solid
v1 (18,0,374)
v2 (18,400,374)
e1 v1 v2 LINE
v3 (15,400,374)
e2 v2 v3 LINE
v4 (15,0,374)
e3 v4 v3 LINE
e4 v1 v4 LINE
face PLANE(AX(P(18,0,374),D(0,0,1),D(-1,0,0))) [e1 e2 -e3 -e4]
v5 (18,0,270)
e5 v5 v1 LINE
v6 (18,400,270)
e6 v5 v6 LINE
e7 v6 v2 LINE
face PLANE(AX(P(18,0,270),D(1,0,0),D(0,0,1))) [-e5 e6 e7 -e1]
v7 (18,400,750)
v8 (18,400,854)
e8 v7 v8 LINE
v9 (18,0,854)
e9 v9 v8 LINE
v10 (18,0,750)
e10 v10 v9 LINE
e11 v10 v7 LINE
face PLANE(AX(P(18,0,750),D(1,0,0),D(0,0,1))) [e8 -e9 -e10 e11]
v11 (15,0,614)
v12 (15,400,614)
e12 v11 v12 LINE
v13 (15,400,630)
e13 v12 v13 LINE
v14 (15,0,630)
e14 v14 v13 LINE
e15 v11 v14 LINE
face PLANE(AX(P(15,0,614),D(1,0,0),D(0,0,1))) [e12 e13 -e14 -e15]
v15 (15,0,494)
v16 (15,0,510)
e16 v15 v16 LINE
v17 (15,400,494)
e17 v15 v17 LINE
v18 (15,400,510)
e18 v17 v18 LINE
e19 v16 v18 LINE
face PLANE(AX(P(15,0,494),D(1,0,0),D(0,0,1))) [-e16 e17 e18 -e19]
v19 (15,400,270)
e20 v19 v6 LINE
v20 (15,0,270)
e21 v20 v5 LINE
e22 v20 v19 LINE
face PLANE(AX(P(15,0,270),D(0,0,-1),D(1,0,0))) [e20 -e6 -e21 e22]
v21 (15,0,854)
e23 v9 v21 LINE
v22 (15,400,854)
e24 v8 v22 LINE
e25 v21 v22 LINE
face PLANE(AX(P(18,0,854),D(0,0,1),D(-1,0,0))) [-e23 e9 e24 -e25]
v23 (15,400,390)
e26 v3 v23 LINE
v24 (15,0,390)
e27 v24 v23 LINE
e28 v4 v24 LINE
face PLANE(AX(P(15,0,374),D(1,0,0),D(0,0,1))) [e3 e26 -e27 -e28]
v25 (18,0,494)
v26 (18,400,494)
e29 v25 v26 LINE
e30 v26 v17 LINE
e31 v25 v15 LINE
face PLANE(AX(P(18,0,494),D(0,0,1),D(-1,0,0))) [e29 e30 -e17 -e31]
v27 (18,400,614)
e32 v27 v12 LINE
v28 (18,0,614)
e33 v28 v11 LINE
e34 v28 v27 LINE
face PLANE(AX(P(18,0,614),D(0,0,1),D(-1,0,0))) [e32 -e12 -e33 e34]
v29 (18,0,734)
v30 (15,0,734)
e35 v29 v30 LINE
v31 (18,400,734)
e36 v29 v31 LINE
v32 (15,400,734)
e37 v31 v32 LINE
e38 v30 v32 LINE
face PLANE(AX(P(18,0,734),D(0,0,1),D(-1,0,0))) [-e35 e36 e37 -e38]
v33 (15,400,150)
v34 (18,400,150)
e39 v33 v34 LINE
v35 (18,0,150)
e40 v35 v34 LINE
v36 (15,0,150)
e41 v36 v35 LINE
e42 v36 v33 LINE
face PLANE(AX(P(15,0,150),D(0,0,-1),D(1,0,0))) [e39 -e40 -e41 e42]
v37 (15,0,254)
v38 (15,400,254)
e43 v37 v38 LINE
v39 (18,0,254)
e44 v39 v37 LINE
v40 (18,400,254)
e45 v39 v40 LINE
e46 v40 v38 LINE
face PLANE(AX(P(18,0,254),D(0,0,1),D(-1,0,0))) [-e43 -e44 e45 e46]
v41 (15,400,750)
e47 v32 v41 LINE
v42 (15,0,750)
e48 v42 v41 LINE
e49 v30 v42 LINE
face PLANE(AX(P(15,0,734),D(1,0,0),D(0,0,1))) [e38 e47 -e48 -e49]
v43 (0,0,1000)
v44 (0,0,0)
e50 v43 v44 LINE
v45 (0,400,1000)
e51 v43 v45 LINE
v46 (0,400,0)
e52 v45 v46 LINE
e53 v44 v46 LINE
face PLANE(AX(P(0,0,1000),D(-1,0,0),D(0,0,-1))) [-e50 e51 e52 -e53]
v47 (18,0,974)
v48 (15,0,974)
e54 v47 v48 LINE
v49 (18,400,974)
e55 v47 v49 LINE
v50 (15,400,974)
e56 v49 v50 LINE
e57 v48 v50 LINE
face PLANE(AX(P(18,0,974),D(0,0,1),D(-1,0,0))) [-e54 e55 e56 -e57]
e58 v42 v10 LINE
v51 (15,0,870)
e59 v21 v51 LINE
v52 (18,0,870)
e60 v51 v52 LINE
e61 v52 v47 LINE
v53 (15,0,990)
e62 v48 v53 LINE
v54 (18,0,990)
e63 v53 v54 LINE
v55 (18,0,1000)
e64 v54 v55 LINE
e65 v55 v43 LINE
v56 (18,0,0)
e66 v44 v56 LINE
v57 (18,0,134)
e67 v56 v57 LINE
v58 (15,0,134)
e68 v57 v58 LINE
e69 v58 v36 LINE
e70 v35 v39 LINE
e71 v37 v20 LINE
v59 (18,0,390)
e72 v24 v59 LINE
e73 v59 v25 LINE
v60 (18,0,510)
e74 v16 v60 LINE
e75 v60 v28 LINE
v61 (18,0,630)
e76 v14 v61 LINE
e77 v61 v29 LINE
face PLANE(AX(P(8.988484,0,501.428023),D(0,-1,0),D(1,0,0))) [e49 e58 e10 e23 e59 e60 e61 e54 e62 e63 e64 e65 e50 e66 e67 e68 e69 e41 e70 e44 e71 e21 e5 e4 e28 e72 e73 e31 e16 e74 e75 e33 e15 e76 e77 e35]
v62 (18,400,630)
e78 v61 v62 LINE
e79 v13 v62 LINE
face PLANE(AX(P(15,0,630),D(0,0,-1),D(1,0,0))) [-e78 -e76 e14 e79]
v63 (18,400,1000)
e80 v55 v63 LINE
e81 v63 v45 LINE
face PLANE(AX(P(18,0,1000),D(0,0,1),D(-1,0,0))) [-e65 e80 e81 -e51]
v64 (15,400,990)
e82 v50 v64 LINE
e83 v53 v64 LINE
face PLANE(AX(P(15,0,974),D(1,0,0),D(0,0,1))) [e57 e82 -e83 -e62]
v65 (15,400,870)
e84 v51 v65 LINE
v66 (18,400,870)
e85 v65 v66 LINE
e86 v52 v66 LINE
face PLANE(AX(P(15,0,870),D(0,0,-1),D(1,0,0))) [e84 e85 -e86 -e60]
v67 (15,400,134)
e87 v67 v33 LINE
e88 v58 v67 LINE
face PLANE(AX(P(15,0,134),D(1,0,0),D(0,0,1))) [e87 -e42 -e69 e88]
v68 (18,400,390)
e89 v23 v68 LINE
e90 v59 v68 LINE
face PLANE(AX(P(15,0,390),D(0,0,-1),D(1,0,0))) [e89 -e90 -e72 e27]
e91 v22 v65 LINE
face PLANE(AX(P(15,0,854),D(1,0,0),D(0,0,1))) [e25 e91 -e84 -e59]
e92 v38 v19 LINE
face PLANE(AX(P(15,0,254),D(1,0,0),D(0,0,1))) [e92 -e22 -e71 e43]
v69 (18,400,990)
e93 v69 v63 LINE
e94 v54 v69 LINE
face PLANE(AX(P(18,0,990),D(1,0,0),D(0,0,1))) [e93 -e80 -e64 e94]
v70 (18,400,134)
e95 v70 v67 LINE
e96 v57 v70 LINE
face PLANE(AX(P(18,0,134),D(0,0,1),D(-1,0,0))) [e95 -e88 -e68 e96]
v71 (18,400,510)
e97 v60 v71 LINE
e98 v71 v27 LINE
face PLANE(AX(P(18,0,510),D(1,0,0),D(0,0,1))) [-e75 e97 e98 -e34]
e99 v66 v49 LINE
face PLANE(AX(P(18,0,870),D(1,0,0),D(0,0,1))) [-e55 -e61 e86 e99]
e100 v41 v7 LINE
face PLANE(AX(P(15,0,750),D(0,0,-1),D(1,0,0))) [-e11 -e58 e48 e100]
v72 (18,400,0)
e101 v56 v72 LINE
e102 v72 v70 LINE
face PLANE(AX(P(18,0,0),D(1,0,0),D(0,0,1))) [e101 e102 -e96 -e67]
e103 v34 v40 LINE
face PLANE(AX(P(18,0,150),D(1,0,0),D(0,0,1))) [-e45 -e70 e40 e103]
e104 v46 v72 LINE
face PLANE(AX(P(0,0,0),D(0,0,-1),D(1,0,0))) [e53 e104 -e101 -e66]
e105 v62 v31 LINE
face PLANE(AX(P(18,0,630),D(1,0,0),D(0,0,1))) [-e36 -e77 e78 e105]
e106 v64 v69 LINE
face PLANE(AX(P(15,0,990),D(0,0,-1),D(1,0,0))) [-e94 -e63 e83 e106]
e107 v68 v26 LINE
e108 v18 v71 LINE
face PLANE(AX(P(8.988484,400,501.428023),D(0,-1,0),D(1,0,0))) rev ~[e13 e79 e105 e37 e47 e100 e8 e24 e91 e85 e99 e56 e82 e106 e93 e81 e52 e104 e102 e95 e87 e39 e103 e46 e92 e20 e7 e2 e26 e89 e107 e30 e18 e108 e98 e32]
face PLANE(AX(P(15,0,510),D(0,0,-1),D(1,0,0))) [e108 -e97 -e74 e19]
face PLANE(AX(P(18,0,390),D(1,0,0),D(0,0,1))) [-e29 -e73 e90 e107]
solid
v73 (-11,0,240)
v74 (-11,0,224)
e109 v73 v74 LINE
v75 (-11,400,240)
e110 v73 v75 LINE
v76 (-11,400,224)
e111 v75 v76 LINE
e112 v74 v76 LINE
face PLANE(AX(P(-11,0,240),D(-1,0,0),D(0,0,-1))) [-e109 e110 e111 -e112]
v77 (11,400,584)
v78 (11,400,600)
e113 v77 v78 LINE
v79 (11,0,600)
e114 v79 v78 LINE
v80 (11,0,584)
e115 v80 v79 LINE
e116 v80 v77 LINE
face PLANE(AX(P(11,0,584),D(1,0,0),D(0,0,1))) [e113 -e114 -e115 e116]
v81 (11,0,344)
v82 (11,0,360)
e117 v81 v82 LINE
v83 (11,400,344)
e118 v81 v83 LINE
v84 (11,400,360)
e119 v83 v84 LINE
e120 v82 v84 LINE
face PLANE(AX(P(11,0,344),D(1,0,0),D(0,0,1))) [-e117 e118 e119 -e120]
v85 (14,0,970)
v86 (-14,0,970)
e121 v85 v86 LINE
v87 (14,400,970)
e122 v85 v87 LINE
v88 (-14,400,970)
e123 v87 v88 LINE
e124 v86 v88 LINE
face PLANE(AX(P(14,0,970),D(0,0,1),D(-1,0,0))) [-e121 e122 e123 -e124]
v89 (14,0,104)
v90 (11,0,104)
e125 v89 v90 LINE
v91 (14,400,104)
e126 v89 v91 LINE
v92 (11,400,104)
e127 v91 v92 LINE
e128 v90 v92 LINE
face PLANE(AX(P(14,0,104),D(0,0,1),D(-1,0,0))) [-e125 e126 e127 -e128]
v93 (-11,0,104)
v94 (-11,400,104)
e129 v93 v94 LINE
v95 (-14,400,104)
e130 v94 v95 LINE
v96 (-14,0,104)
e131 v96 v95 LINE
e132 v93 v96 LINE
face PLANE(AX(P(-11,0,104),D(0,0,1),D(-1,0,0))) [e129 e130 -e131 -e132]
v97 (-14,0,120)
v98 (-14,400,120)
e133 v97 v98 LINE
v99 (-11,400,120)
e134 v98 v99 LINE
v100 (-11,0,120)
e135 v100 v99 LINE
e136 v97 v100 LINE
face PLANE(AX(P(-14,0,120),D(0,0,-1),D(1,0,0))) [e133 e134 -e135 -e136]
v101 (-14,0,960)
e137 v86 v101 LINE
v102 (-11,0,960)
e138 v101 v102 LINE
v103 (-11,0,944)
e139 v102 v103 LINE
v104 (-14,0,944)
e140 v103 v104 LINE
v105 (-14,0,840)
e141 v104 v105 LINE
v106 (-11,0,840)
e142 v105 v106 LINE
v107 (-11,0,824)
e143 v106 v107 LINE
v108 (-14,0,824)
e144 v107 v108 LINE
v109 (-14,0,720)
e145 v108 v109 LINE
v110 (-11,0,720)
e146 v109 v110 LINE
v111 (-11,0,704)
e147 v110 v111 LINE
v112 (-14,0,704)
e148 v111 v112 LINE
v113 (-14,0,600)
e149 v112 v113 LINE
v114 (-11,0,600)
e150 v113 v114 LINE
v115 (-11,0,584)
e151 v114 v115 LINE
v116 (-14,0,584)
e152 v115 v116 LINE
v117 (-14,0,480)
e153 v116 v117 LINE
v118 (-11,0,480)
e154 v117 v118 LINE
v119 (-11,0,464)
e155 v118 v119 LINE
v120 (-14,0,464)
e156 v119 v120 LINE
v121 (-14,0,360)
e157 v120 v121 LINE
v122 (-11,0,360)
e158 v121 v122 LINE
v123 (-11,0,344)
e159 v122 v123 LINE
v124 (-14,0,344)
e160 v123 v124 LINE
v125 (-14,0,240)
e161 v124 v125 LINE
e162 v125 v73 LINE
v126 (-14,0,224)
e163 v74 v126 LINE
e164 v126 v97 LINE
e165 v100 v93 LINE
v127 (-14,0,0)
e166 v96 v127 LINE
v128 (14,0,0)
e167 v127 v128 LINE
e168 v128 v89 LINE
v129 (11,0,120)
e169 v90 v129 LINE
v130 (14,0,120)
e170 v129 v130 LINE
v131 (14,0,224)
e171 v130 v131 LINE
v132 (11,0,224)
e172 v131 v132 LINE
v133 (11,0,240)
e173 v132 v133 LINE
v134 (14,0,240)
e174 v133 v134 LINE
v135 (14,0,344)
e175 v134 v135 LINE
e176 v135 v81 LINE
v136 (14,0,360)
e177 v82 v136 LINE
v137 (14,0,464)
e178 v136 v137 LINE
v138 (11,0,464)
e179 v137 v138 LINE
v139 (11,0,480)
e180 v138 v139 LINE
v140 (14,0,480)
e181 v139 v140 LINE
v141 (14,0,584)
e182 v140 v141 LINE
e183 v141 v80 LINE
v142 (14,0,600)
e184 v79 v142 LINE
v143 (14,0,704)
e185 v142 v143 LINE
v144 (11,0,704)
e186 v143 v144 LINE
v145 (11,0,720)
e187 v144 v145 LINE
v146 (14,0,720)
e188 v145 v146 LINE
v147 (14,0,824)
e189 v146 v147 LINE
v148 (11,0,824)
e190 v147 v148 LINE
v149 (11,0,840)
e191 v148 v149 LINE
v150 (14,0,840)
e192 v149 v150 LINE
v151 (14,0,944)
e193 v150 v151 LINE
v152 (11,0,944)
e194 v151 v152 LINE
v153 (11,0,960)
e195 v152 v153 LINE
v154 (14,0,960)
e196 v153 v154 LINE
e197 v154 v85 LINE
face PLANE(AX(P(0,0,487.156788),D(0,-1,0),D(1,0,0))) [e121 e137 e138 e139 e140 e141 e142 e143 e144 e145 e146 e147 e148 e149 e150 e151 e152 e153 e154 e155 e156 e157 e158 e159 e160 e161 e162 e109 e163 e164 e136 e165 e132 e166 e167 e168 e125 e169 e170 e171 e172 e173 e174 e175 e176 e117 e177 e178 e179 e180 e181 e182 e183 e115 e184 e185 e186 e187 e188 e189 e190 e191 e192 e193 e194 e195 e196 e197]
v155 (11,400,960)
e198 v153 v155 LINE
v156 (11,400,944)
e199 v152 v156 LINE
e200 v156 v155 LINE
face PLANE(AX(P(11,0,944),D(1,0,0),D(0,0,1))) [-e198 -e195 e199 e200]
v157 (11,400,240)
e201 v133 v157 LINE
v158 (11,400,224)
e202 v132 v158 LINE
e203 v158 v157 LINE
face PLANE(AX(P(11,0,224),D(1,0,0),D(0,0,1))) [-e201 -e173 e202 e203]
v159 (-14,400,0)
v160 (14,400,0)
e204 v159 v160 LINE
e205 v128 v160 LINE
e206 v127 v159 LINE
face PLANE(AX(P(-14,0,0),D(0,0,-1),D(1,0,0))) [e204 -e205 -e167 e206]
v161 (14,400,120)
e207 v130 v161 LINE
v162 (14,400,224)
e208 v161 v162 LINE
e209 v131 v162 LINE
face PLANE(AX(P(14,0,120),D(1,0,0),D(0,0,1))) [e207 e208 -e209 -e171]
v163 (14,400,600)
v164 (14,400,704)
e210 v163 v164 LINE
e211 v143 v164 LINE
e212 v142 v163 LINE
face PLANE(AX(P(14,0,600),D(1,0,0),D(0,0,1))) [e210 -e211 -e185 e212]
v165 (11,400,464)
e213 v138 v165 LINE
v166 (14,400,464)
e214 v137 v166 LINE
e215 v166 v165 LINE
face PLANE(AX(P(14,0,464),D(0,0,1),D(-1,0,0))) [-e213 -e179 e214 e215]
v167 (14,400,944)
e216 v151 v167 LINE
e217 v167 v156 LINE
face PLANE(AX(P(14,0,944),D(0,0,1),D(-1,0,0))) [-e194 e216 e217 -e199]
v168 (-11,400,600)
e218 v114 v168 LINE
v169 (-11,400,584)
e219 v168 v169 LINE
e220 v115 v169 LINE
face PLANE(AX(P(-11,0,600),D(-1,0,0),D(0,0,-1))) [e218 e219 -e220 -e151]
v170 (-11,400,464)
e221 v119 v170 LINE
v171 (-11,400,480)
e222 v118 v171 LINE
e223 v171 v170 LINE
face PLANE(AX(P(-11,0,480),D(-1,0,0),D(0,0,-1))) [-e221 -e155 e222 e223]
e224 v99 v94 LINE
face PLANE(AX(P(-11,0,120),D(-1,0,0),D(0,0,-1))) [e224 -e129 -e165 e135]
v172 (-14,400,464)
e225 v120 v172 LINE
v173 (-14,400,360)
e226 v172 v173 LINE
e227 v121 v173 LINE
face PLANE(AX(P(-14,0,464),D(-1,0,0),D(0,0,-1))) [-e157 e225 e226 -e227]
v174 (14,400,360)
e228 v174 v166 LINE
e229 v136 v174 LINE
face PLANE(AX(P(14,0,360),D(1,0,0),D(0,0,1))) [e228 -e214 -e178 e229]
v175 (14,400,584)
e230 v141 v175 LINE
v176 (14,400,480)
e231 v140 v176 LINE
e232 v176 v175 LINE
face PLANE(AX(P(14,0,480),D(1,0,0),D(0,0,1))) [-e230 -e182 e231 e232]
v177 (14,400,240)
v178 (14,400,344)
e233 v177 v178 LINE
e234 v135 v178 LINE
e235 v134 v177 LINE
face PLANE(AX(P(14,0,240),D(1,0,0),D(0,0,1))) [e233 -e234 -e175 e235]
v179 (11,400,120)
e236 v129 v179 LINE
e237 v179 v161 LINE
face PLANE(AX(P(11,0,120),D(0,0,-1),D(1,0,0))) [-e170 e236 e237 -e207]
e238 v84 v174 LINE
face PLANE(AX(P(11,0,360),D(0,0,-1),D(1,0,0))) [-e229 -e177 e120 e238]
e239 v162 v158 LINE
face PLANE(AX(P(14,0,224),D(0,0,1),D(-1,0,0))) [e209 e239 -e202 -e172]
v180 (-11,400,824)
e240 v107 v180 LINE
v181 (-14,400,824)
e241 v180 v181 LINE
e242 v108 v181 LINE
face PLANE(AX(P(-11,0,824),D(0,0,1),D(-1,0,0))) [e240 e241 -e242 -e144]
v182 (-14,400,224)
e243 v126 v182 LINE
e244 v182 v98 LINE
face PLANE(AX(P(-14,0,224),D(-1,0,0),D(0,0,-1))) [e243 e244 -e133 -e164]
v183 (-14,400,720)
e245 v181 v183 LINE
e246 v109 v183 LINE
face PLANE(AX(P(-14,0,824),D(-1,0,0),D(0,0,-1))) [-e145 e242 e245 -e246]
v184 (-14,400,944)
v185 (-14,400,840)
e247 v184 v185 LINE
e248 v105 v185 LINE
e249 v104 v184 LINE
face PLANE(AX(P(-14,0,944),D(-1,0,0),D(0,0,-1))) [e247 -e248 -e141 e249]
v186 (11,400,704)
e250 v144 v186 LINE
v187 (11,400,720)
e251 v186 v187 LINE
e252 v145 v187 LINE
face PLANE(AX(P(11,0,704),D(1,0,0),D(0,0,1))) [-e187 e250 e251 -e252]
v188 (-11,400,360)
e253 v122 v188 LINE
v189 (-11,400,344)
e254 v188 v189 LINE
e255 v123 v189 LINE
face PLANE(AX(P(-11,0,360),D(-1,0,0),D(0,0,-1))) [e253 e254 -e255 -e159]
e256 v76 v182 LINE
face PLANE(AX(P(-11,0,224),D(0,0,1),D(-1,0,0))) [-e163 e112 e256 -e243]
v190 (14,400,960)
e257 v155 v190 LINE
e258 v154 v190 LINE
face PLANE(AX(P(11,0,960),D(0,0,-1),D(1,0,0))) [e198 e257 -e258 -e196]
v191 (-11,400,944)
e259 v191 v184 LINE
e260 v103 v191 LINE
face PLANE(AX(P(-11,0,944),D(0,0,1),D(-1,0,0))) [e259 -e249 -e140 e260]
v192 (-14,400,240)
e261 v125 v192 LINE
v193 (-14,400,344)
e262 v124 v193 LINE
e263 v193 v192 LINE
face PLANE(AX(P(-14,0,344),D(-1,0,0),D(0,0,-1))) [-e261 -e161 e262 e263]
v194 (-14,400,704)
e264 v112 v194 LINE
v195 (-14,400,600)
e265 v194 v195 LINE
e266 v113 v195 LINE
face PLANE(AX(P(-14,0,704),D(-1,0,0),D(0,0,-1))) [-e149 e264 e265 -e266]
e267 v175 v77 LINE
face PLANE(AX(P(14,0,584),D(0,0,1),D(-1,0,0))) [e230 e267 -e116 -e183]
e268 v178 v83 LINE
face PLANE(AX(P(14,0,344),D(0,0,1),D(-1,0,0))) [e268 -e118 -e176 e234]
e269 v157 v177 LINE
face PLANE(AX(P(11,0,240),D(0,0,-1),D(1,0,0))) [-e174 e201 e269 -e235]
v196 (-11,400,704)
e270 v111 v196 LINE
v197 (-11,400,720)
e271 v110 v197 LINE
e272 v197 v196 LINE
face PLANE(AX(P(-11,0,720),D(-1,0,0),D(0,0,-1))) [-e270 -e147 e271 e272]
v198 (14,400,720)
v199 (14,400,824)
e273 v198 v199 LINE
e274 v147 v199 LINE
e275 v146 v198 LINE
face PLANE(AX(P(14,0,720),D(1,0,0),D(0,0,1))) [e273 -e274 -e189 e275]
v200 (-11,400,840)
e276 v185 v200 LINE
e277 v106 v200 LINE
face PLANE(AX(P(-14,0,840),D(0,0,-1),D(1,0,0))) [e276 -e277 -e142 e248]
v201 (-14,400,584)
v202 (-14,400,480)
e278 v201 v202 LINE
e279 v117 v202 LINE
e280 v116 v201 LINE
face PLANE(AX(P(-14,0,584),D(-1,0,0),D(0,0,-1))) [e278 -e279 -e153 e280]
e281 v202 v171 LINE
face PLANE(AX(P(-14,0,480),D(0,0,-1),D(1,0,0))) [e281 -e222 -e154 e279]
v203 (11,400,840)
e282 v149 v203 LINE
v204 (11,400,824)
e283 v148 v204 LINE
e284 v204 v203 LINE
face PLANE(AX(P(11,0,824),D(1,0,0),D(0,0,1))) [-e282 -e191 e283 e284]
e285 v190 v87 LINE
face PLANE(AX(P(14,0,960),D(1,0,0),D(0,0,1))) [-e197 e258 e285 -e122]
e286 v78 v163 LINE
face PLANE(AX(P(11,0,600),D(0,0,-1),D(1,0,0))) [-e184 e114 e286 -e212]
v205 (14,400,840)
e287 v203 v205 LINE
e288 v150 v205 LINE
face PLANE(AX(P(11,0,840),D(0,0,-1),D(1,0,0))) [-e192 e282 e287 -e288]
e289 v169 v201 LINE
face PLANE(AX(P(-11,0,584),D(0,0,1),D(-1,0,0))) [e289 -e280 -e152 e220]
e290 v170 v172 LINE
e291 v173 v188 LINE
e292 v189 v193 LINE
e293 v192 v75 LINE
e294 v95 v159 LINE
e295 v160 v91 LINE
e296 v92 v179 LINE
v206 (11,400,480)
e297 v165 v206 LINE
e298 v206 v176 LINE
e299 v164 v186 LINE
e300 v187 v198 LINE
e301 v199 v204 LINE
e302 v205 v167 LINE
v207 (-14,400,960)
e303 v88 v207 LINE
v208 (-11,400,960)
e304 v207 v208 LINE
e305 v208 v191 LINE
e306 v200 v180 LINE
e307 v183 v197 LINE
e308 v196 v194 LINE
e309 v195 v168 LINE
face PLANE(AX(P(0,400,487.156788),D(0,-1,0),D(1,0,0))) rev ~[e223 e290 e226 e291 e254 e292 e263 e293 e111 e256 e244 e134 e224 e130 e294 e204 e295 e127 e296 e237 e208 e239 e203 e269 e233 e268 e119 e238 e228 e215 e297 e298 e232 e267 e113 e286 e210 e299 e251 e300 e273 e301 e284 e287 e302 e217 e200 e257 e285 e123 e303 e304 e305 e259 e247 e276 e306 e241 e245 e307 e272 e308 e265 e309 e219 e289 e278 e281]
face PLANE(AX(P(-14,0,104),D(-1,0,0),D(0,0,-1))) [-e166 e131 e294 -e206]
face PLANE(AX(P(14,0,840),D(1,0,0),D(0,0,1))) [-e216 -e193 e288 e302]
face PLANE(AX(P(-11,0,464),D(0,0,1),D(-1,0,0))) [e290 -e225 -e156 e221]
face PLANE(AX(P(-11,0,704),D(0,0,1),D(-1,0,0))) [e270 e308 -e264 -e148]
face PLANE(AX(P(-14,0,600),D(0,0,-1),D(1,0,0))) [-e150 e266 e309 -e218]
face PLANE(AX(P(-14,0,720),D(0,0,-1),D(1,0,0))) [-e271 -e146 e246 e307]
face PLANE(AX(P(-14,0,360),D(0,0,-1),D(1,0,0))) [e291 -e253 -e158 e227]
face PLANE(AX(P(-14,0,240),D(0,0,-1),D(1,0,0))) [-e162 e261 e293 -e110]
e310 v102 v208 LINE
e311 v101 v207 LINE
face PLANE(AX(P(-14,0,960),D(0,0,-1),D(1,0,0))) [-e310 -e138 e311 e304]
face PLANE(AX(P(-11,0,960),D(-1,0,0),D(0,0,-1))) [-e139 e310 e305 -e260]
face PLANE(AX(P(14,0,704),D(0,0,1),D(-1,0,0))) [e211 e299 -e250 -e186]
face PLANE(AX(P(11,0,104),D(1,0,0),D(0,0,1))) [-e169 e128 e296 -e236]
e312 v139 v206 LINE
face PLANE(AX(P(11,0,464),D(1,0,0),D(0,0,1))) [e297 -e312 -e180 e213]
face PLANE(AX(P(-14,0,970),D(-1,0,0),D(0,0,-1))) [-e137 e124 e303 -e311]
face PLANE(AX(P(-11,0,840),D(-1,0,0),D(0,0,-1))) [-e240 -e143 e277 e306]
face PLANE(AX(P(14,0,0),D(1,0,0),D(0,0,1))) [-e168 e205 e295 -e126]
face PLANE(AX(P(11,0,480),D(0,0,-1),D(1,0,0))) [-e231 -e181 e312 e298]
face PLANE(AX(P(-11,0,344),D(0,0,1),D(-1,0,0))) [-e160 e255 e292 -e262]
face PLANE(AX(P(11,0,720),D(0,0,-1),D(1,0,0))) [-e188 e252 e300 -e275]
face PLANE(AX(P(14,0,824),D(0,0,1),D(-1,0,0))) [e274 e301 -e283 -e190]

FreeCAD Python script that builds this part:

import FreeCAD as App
import Part
import Sketcher

doc = App.newDocument("Part")
body = doc.addObject("PartDesign::Body", "Body")

# Sketch on XZ plane
sketch1 = body.newObject("Sketcher::SketchObject", "Sketch")
sketch1.AttachmentSupport = (doc.getObject("XZ_Plane"), [""])
sketch1.MapMode = "FlatFace"
sketch1.addGeometry(Part.LineSegment(App.Vector(0, 1000, 0), App.Vector(0, 0, 0)), False)
sketch1.addGeometry(Part.LineSegment(App.Vector(0, 0, 0), App.Vector(18, 0, 0)), False)
sketch1.addGeometry(Part.LineSegment(App.Vector(18, 0, 0), App.Vector(18, 134, 0)), False)
sketch1.addGeometry(Part.LineSegment(App.Vector(18, 134, 0), App.Vector(15, 134, 0)), False)
sketch1.addGeometry(Part.LineSegment(App.Vector(15, 134, 0), App.Vector(15, 150, 0)), False)
sketch1.addGeometry(Part.LineSegment(App.Vector(15, 150, 0), App.Vector(18, 150, 0)), False)
sketch1.addGeometry(Part.LineSegment(App.Vector(18, 150, 0), App.Vector(18, 254, 0)), False)
sketch1.addGeometry(Part.LineSegment(App.Vector(18, 254, 0), App.Vector(15, 254, 0)), False)
sketch1.addGeometry(Part.LineSegment(App.Vector(15, 254, 0), App.Vector(15, 270, 0)), False)
sketch1.addGeometry(Part.LineSegment(App.Vector(15, 270, 0), App.Vector(18, 270, 0)), False)
sketch1.addGeometry(Part.LineSegment(App.Vector(18, 270, 0), App.Vector(18, 374, 0)), False)
sketch1.addGeometry(Part.LineSegment(App.Vector(18, 374, 0), App.Vector(15, 374, 0)), False)
sketch1.addGeometry(Part.LineSegment(App.Vector(15, 374, 0), App.Vector(15, 390, 0)), False)
sketch1.addGeometry(Part.LineSegment(App.Vector(15, 390, 0), App.Vector(18, 390, 0)), False)
sketch1.addGeometry(Part.LineSegment(App.Vector(18, 390, 0), App.Vector(18, 494, 0)), False)
sketch1.addGeometry(Part.LineSegment(App.Vector(18, 494, 0), App.Vector(15, 494, 0)), False)
sketch1.addGeometry(Part.LineSegment(App.Vector(15, 494, 0), App.Vector(15, 510, 0)), False)
sketch1.addGeometry(Part.LineSegment(App.Vector(15, 510, 0), App.Vector(18, 510, 0)), False)
sketch1.addGeometry(Part.LineSegment(App.Vector(18, 510, 0), App.Vector(18, 614, 0)), False)
sketch1.addGeometry(Part.LineSegment(App.Vector(18, 614, 0), App.Vector(15, 614, 0)), False)
sketch1.addGeometry(Part.LineSegment(App.Vector(15, 614, 0), App.Vector(15, 630, 0)), False)
sketch1.addGeometry(Part.LineSegment(App.Vector(15, 630, 0), App.Vector(18, 630, 0)), False)
sketch1.addGeometry(Part.LineSegment(App.Vector(18, 630, 0), App.Vector(18, 734, 0)), False)
sketch1.addGeometry(Part.LineSegment(App.Vector(18, 734, 0), App.Vector(15, 734, 0)), False)
sketch1.addGeometry(Part.LineSegment(App.Vector(15, 734, 0), App.Vector(15, 750, 0)), False)
sketch1.addGeometry(Part.LineSegment(App.Vector(15, 750, 0), App.Vector(18, 750, 0)), False)
sketch1.addGeometry(Part.LineSegment(App.Vector(18, 750, 0), App.Vector(18, 854, 0)), False)
sketch1.addGeometry(Part.LineSegment(App.Vector(18, 854, 0), App.Vector(15, 854, 0)), False)
sketch1.addGeometry(Part.LineSegment(App.Vector(15, 854, 0), App.Vector(15, 870, 0)), False)
sketch1.addGeometry(Part.LineSegment(App.Vector(15, 870, 0), App.Vector(18, 870, 0)), False)
sketch1.addGeometry(Part.LineSegment(App.Vector(18, 870, 0), App.Vector(18, 974, 0)), False)
sketch1.addGeometry(Part.LineSegment(App.Vector(18, 974, 0), App.Vector(15, 974, 0)), False)
sketch1.addGeometry(Part.LineSegment(App.Vector(15, 974, 0), App.Vector(15, 990, 0)), False)
sketch1.addGeometry(Part.LineSegment(App.Vector(15, 990, 0), App.Vector(18, 990, 0)), False)
sketch1.addGeometry(Part.LineSegment(App.Vector(18, 990, 0), App.Vector(18, 1000, 0)), False)
sketch1.addGeometry(Part.LineSegment(App.Vector(18, 1000, 0), App.Vector(0, 1000, 0)), False)
sketch1.addConstraint(Sketcher.Constraint("Coincident", 0, 2, 1, 1))
sketch1.addConstraint(Sketcher.Constraint("Coincident", 1, 2, 2, 1))
sketch1.addConstraint(Sketcher.Constraint("Coincident", 2, 2, 3, 1))
sketch1.addConstraint(Sketcher.Constraint("Coincident", 3, 2, 4, 1))
sketch1.addConstraint(Sketcher.Constraint("Coincident", 4, 2, 5, 1))
sketch1.addConstraint(Sketcher.Constraint("Coincident", 5, 2, 6, 1))
sketch1.addConstraint(Sketcher.Constraint("Coincident", 6, 2, 7, 1))
sketch1.addConstraint(Sketcher.Constraint("Coincident", 7, 2, 8, 1))
sketch1.addConstraint(Sketcher.Constraint("Coincident", 8, 2, 9, 1))
sketch1.addConstraint(Sketcher.Constraint("Coincident", 9, 2, 10, 1))
sketch1.addConstraint(Sketcher.Constraint("Coincident", 10, 2, 11, 1))
sketch1.addConstraint(Sketcher.Constraint("Coincident", 11, 2, 12, 1))
sketch1.addConstraint(Sketcher.Constraint("Coincident", 12, 2, 13, 1))
sketch1.addConstraint(Sketcher.Constraint("Coincident", 13, 2, 14, 1))
sketch1.addConstraint(Sketcher.Constraint("Coincident", 14, 2, 15, 1))
sketch1.addConstraint(Sketcher.Constraint("Coincident", 15, 2, 16, 1))
sketch1.addConstraint(Sketcher.Constraint("Coincident", 16, 2, 17, 1))
sketch1.addConstraint(Sketcher.Constraint("Coincident", 17, 2, 18, 1))
sketch1.addConstraint(Sketcher.Constraint("Coincident", 18, 2, 19, 1))
sketch1.addConstraint(Sketcher.Constraint("Coincident", 19, 2, 20, 1))
sketch1.addConstraint(Sketcher.Constraint("Coincident", 20, 2, 21, 1))
sketch1.addConstraint(Sketcher.Constraint("Coincident", 21, 2, 22, 1))
sketch1.addConstraint(Sketcher.Constraint("Coincident", 22, 2, 23, 1))
sketch1.addConstraint(Sketcher.Constraint("Coincident", 23, 2, 24, 1))
sketch1.addConstraint(Sketcher.Constraint("Coincident", 24, 2, 25, 1))
sketch1.addConstraint(Sketcher.Constraint("Coincident", 25, 2, 26, 1))
sketch1.addConstraint(Sketcher.Constraint("Coincident", 26, 2, 27, 1))
sketch1.addConstraint(Sketcher.Constraint("Coincident", 27, 2, 28, 1))
sketch1.addConstraint(Sketcher.Constraint("Coincident", 28, 2, 29, 1))
sketch1.addConstraint(Sketcher.Constraint("Coincident", 29, 2, 30, 1))
sketch1.addConstraint(Sketcher.Constraint("Coincident", 30, 2, 31, 1))
sketch1.addConstraint(Sketcher.Constraint("Coincident", 31, 2, 32, 1))
sketch1.addConstraint(Sketcher.Constraint("Coincident", 32, 2, 33, 1))
sketch1.addConstraint(Sketcher.Constraint("Coincident", 33, 2, 34, 1))
sketch1.addConstraint(Sketcher.Constraint("Coincident", 34, 2, 35, 1))
sketch1.addConstraint(Sketcher.Constraint("Coincident", 35, 2, 0, 1))
sketch1.addConstraint(Sketcher.Constraint("Vertical", 0))
sketch1.addConstraint(Sketcher.Constraint("Horizontal", 1))
sketch1.addConstraint(Sketcher.Constraint("Vertical", 2))
sketch1.addConstraint(Sketcher.Constraint("Horizontal", 3))
sketch1.addConstraint(Sketcher.Constraint("Vertical", 4))
sketch1.addConstraint(Sketcher.Constraint("Horizontal", 5))
sketch1.addConstraint(Sketcher.Constraint("Vertical", 6))
sketch1.addConstraint(Sketcher.Constraint("Horizontal", 7))
sketch1.addConstraint(Sketcher.Constraint("Vertical", 8))
sketch1.addConstraint(Sketcher.Constraint("Horizontal", 9))
sketch1.addConstraint(Sketcher.Constraint("Vertical", 10))
sketch1.addConstraint(Sketcher.Constraint("Horizontal", 11))
sketch1.addConstraint(Sketcher.Constraint("Vertical", 12))
sketch1.addConstraint(Sketcher.Constraint("Horizontal", 13))
sketch1.addConstraint(Sketcher.Constraint("Vertical", 14))
sketch1.addConstraint(Sketcher.Constraint("Horizontal", 15))
sketch1.addConstraint(Sketcher.Constraint("Vertical", 16))
sketch1.addConstraint(Sketcher.Constraint("Horizontal", 17))
sketch1.addConstraint(Sketcher.Constraint("Vertical", 18))
sketch1.addConstraint(Sketcher.Constraint("Horizontal", 19))
sketch1.addConstraint(Sketcher.Constraint("Vertical", 20))
sketch1.addConstraint(Sketcher.Constraint("Horizontal", 21))
sketch1.addConstraint(Sketcher.Constraint("Vertical", 22))
sketch1.addConstraint(Sketcher.Constraint("Horizontal", 23))
sketch1.addConstraint(Sketcher.Constraint("Vertical", 24))
sketch1.addConstraint(Sketcher.Constraint("Horizontal", 25))
sketch1.addConstraint(Sketcher.Constraint("Vertical", 26))
sketch1.addConstraint(Sketcher.Constraint("Horizontal", 27))
sketch1.addConstraint(Sketcher.Constraint("Vertical", 28))
sketch1.addConstraint(Sketcher.Constraint("Horizontal", 29))
sketch1.addConstraint(Sketcher.Constraint("Vertical", 30))
sketch1.addConstraint(Sketcher.Constraint("Horizontal", 31))
sketch1.addConstraint(Sketcher.Constraint("Vertical", 32))
sketch1.addConstraint(Sketcher.Constraint("Horizontal", 33))
sketch1.addConstraint(Sketcher.Constraint("Vertical", 34))
sketch1.addConstraint(Sketcher.Constraint("Horizontal", 35))
sketch1.addConstraint(Sketcher.Constraint("Coincident", 0, 2, -1, 1))
sketch1.addConstraint(Sketcher.Constraint("Vertical", 2, 2, 5, 2))
sketch1.addConstraint(Sketcher.Constraint("Vertical", 4, 2, 7, 2))
sketch1.addConstraint(Sketcher.Constraint("Vertical", 6, 2, 9, 2))
sketch1.addConstraint(Sketcher.Constraint("Vertical", 8, 2, 11, 2))
sketch1.addConstraint(Sketcher.Constraint("Vertical", 10, 2, 13, 2))
sketch1.addConstraint(Sketcher.Constraint("Vertical", 12, 2, 15, 2))
sketch1.addConstraint(Sketcher.Constraint("Vertical", 14, 2, 17, 2))
sketch1.addConstraint(Sketcher.Constraint("Vertical", 16, 2, 19, 2))
sketch1.addConstraint(Sketcher.Constraint("Vertical", 18, 2, 21, 2))
sketch1.addConstraint(Sketcher.Constraint("Vertical", 20, 2, 23, 2))
sketch1.addConstraint(Sketcher.Constraint("Vertical", 22, 2, 25, 2))
sketch1.addConstraint(Sketcher.Constraint("Vertical", 24, 2, 27, 2))
sketch1.addConstraint(Sketcher.Constraint("Vertical", 26, 2, 29, 2))
sketch1.addConstraint(Sketcher.Constraint("Vertical", 28, 2, 31, 2))
sketch1.addConstraint(Sketcher.Constraint("Vertical", 30, 2, 33, 2))
sketch1.addConstraint(Sketcher.Constraint("Equal", 4, 8))
sketch1.addConstraint(Sketcher.Constraint("Equal", 6, 10))
sketch1.addConstraint(Sketcher.Constraint("Equal", 8, 12))
sketch1.addConstraint(Sketcher.Constraint("Equal", 10, 14))
sketch1.addConstraint(Sketcher.Constraint("Equal", 12, 16))
sketch1.addConstraint(Sketcher.Constraint("Equal", 14, 18))
sketch1.addConstraint(Sketcher.Constraint("Equal", 16, 20))
sketch1.addConstraint(Sketcher.Constraint("Equal", 18, 22))
sketch1.addConstraint(Sketcher.Constraint("Equal", 20, 24))
sketch1.addConstraint(Sketcher.Constraint("Equal", 22, 26))
sketch1.addConstraint(Sketcher.Constraint("Equal", 24, 28))
sketch1.addConstraint(Sketcher.Constraint("Equal", 26, 30))
sketch1.addConstraint(Sketcher.Constraint("Equal", 28, 32))
sketch1.addConstraint(Sketcher.Constraint("DistanceX", 1, 1, 1, 2, 18.0))
sketch1.addConstraint(Sketcher.Constraint("DistanceX", 3, 2, 3, 1, 3.0))
sketch1.addConstraint(Sketcher.Constraint("DistanceY", 0, 2, 0, 1, 1000.0))
sketch1.addConstraint(Sketcher.Constraint("DistanceY", 2, 1, 2, 2, 134.0))
sketch1.addConstraint(Sketcher.Constraint("DistanceY", 4, 1, 4, 2, 16.0))
sketch1.addConstraint(Sketcher.Constraint("DistanceY", 6, 1, 6, 2, 104.0))
pad1 = body.newObject("PartDesign::Pad", "Pad")
pad1.Profile = sketch1
pad1.Length = 400
pad1.Reversed = True
body2 = doc.addObject("PartDesign::Body", "Body001")

# Sketch on XZ plane
sketch2 = body2.newObject("Sketcher::SketchObject", "Sketch001")
sketch2.AttachmentSupport = (doc.getObject("XZ_Plane001"), [""])
sketch2.MapMode = "FlatFace"
sketch2.addGeometry(Part.LineSegment(App.Vector(14, 970, 0), App.Vector(-14, 970, 0)), False)
sketch2.addGeometry(Part.LineSegment(App.Vector(-14, 970, 0), App.Vector(-14, 960, 0)), False)
sketch2.addGeometry(Part.LineSegment(App.Vector(-14, 960, 0), App.Vector(-11, 960, 0)), False)
sketch2.addGeometry(Part.LineSegment(App.Vector(-11, 960, 0), App.Vector(-11, 944, 0)), False)
sketch2.addGeometry(Part.LineSegment(App.Vector(-11, 944, 0), App.Vector(-14, 944, 0)), False)
sketch2.addGeometry(Part.LineSegment(App.Vector(-14, 944, 0), App.Vector(-14, 840, 0)), False)
sketch2.addGeometry(Part.LineSegment(App.Vector(-14, 840, 0), App.Vector(-11, 840, 0)), False)
sketch2.addGeometry(Part.LineSegment(App.Vector(-11, 840, 0), App.Vector(-11, 824, 0)), False)
sketch2.addGeometry(Part.LineSegment(App.Vector(-11, 824, 0), App.Vector(-14, 824, 0)), False)
sketch2.addGeometry(Part.LineSegment(App.Vector(-14, 824, 0), App.Vector(-14, 720, 0)), False)
sketch2.addGeometry(Part.LineSegment(App.Vector(-14, 720, 0), App.Vector(-11, 720, 0)), False)
sketch2.addGeometry(Part.LineSegment(App.Vector(-11, 720, 0), App.Vector(-11, 704, 0)), False)
sketch2.addGeometry(Part.LineSegment(App.Vector(-11, 704, 0), App.Vector(-14, 704, 0)), False)
sketch2.addGeometry(Part.LineSegment(App.Vector(-14, 704, 0), App.Vector(-14, 600, 0)), False)
sketch2.addGeometry(Part.LineSegment(App.Vector(-14, 600, 0), App.Vector(-11, 600, 0)), False)
sketch2.addGeometry(Part.LineSegment(App.Vector(-11, 600, 0), App.Vector(-11, 584, 0)), False)
sketch2.addGeometry(Part.LineSegment(App.Vector(-11, 584, 0), App.Vector(-14, 584, 0)), False)
sketch2.addGeometry(Part.LineSegment(App.Vector(-14, 584, 0), App.Vector(-14, 480, 0)), False)
sketch2.addGeometry(Part.LineSegment(App.Vector(-14, 480, 0), App.Vector(-11, 480, 0)), False)
sketch2.addGeometry(Part.LineSegment(App.Vector(-11, 480, 0), App.Vector(-11, 464, 0)), False)
sketch2.addGeometry(Part.LineSegment(App.Vector(-11, 464, 0), App.Vector(-14, 464, 0)), False)
sketch2.addGeometry(Part.LineSegment(App.Vector(-14, 464, 0), App.Vector(-14, 360, 0)), False)
sketch2.addGeometry(Part.LineSegment(App.Vector(-14, 360, 0), App.Vector(-11, 360, 0)), False)
sketch2.addGeometry(Part.LineSegment(App.Vector(-11, 360, 0), App.Vector(-11, 344, 0)), False)
sketch2.addGeometry(Part.LineSegment(App.Vector(-11, 344, 0), App.Vector(-14, 344, 0)), False)
sketch2.addGeometry(Part.LineSegment(App.Vector(-14, 344, 0), App.Vector(-14, 240, 0)), False)
sketch2.addGeometry(Part.LineSegment(App.Vector(-14, 240, 0), App.Vector(-11, 240, 0)), False)
sketch2.addGeometry(Part.LineSegment(App.Vector(-11, 240, 0), App.Vector(-11, 224, 0)), False)
sketch2.addGeometry(Part.LineSegment(App.Vector(-11, 224, 0), App.Vector(-14, 224, 0)), False)
sketch2.addGeometry(Part.LineSegment(App.Vector(-14, 224, 0), App.Vector(-14, 120, 0)), False)
sketch2.addGeometry(Part.LineSegment(App.Vector(-14, 120, 0), App.Vector(-11, 120, 0)), False)
sketch2.addGeometry(Part.LineSegment(App.Vector(-11, 120, 0), App.Vector(-11, 104, 0)), False)
sketch2.addGeometry(Part.LineSegment(App.Vector(-11, 104, 0), App.Vector(-14, 104, 0)), False)
sketch2.addGeometry(Part.LineSegment(App.Vector(-14, 104, 0), App.Vector(-14, 0, 0)), False)
sketch2.addGeometry(Part.LineSegment(App.Vector(-14, 0, 0), App.Vector(14, 0, 0)), False)
sketch2.addGeometry(Part.LineSegment(App.Vector(14, 0, 0), App.Vector(14, 104, 0)), False)
sketch2.addGeometry(Part.LineSegment(App.Vector(14, 104, 0), App.Vector(11, 104, 0)), False)
sketch2.addGeometry(Part.LineSegment(App.Vector(11, 104, 0), App.Vector(11, 120, 0)), False)
sketch2.addGeometry(Part.LineSegment(App.Vector(11, 120, 0), App.Vector(14, 120, 0)), False)
sketch2.addGeometry(Part.LineSegment(App.Vector(14, 120, 0), App.Vector(14, 224, 0)), False)
sketch2.addGeometry(Part.LineSegment(App.Vector(14, 224, 0), App.Vector(11, 224, 0)), False)
sketch2.addGeometry(Part.LineSegment(App.Vector(11, 224, 0), App.Vector(11, 240, 0)), False)
sketch2.addGeometry(Part.LineSegment(App.Vector(11, 240, 0), App.Vector(14, 240, 0)), False)
sketch2.addGeometry(Part.LineSegment(App.Vector(14, 240, 0), App.Vector(14, 344, 0)), False)
sketch2.addGeometry(Part.LineSegment(App.Vector(14, 344, 0), App.Vector(11, 344, 0)), False)
sketch2.addGeometry(Part.LineSegment(App.Vector(11, 344, 0), App.Vector(11, 360, 0)), False)
sketch2.addGeometry(Part.LineSegment(App.Vector(11, 360, 0), App.Vector(14, 360, 0)), False)
sketch2.addGeometry(Part.LineSegment(App.Vector(14, 360, 0), App.Vector(14, 464, 0)), False)
sketch2.addGeometry(Part.LineSegment(App.Vector(14, 464, 0), App.Vector(11, 464, 0)), False)
sketch2.addGeometry(Part.LineSegment(App.Vector(11, 464, 0), App.Vector(11, 480, 0)), False)
sketch2.addGeometry(Part.LineSegment(App.Vector(11, 480, 0), App.Vector(14, 480, 0)), False)
sketch2.addGeometry(Part.LineSegment(App.Vector(14, 480, 0), App.Vector(14, 584, 0)), False)
sketch2.addGeometry(Part.LineSegment(App.Vector(14, 584, 0), App.Vector(11, 584, 0)), False)
sketch2.addGeometry(Part.LineSegment(App.Vector(11, 584, 0), App.Vector(11, 600, 0)), False)
sketch2.addGeometry(Part.LineSegment(App.Vector(11, 600, 0), App.Vector(14, 600, 0)), False)
sketch2.addGeometry(Part.LineSegment(App.Vector(14, 600, 0), App.Vector(14, 704, 0)), False)
sketch2.addGeometry(Part.LineSegment(App.Vector(14, 704, 0), App.Vector(11, 704, 0)), False)
sketch2.addGeometry(Part.LineSegment(App.Vector(11, 704, 0), App.Vector(11, 720, 0)), False)
sketch2.addGeometry(Part.LineSegment(App.Vector(11, 720, 0), App.Vector(14, 720, 0)), False)
sketch2.addGeometry(Part.LineSegment(App.Vector(14, 720, 0), App.Vector(14, 824, 0)), False)
sketch2.addGeometry(Part.LineSegment(App.Vector(14, 824, 0), App.Vector(11, 824, 0)), False)
sketch2.addGeometry(Part.LineSegment(App.Vector(11, 824, 0), App.Vector(11, 840, 0)), False)
sketch2.addGeometry(Part.LineSegment(App.Vector(11, 840, 0), App.Vector(14, 840, 0)), False)
sketch2.addGeometry(Part.LineSegment(App.Vector(14, 840, 0), App.Vector(14, 944, 0)), False)
sketch2.addGeometry(Part.LineSegment(App.Vector(14, 944, 0), App.Vector(11, 944, 0)), False)
sketch2.addGeometry(Part.LineSegment(App.Vector(11, 944, 0), App.Vector(11, 960, 0)), False)
sketch2.addGeometry(Part.LineSegment(App.Vector(11, 960, 0), App.Vector(14, 960, 0)), False)
sketch2.addGeometry(Part.LineSegment(App.Vector(14, 960, 0), App.Vector(14, 970, 0)), False)
sketch2.addConstraint(Sketcher.Constraint("Coincident", 0, 2, 1, 1))
sketch2.addConstraint(Sketcher.Constraint("Coincident", 1, 2, 2, 1))
sketch2.addConstraint(Sketcher.Constraint("Coincident", 2, 2, 3, 1))
sketch2.addConstraint(Sketcher.Constraint("Coincident", 3, 2, 4, 1))
sketch2.addConstraint(Sketcher.Constraint("Coincident", 4, 2, 5, 1))
sketch2.addConstraint(Sketcher.Constraint("Coincident", 5, 2, 6, 1))
sketch2.addConstraint(Sketcher.Constraint("Coincident", 6, 2, 7, 1))
sketch2.addConstraint(Sketcher.Constraint("Coincident", 7, 2, 8, 1))
sketch2.addConstraint(Sketcher.Constraint("Coincident", 8, 2, 9, 1))
sketch2.addConstraint(Sketcher.Constraint("Coincident", 9, 2, 10, 1))
sketch2.addConstraint(Sketcher.Constraint("Coincident", 10, 2, 11, 1))
sketch2.addConstraint(Sketcher.Constraint("Coincident", 11, 2, 12, 1))
sketch2.addConstraint(Sketcher.Constraint("Coincident", 12, 2, 13, 1))
sketch2.addConstraint(Sketcher.Constraint("Coincident", 13, 2, 14, 1))
sketch2.addConstraint(Sketcher.Constraint("Coincident", 14, 2, 15, 1))
sketch2.addConstraint(Sketcher.Constraint("Coincident", 15, 2, 16, 1))
sketch2.addConstraint(Sketcher.Constraint("Coincident", 16, 2, 17, 1))
sketch2.addConstraint(Sketcher.Constraint("Coincident", 17, 2, 18, 1))
sketch2.addConstraint(Sketcher.Constraint("Coincident", 18, 2, 19, 1))
sketch2.addConstraint(Sketcher.Constraint("Coincident", 19, 2, 20, 1))
sketch2.addConstraint(Sketcher.Constraint("Coincident", 20, 2, 21, 1))
sketch2.addConstraint(Sketcher.Constraint("Coincident", 21, 2, 22, 1))
sketch2.addConstraint(Sketcher.Constraint("Coincident", 22, 2, 23, 1))
sketch2.addConstraint(Sketcher.Constraint("Coincident", 23, 2, 24, 1))
sketch2.addConstraint(Sketcher.Constraint("Coincident", 24, 2, 25, 1))
sketch2.addConstraint(Sketcher.Constraint("Coincident", 25, 2, 26, 1))
sketch2.addConstraint(Sketcher.Constraint("Coincident", 26, 2, 27, 1))
sketch2.addConstraint(Sketcher.Constraint("Coincident", 27, 2, 28, 1))
sketch2.addConstraint(Sketcher.Constraint("Coincident", 28, 2, 29, 1))
sketch2.addConstraint(Sketcher.Constraint("Coincident", 29, 2, 30, 1))
sketch2.addConstraint(Sketcher.Constraint("Coincident", 30, 2, 31, 1))
sketch2.addConstraint(Sketcher.Constraint("Coincident", 31, 2, 32, 1))
sketch2.addConstraint(Sketcher.Constraint("Coincident", 32, 2, 33, 1))
sketch2.addConstraint(Sketcher.Constraint("Coincident", 33, 2, 34, 1))
sketch2.addConstraint(Sketcher.Constraint("Coincident", 34, 2, 35, 1))
sketch2.addConstraint(Sketcher.Constraint("Coincident", 35, 2, 36, 1))
sketch2.addConstraint(Sketcher.Constraint("Coincident", 36, 2, 37, 1))
sketch2.addConstraint(Sketcher.Constraint("Coincident", 37, 2, 38, 1))
sketch2.addConstraint(Sketcher.Constraint("Coincident", 38, 2, 39, 1))
sketch2.addConstraint(Sketcher.Constraint("Coincident", 39, 2, 40, 1))
sketch2.addConstraint(Sketcher.Constraint("Coincident", 40, 2, 41, 1))
sketch2.addConstraint(Sketcher.Constraint("Coincident", 41, 2, 42, 1))
sketch2.addConstraint(Sketcher.Constraint("Coincident", 42, 2, 43, 1))
sketch2.addConstraint(Sketcher.Constraint("Coincident", 43, 2, 44, 1))
sketch2.addConstraint(Sketcher.Constraint("Coincident", 44, 2, 45, 1))
sketch2.addConstraint(Sketcher.Constraint("Coincident", 45, 2, 46, 1))
sketch2.addConstraint(Sketcher.Constraint("Coincident", 46, 2, 47, 1))
sketch2.addConstraint(Sketcher.Constraint("Coincident", 47, 2, 48, 1))
sketch2.addConstraint(Sketcher.Constraint("Coincident", 48, 2, 49, 1))
sketch2.addConstraint(Sketcher.Constraint("Coincident", 49, 2, 50, 1))
sketch2.addConstraint(Sketcher.Constraint("Coincident", 50, 2, 51, 1))
sketch2.addConstraint(Sketcher.Constraint("Coincident", 51, 2, 52, 1))
sketch2.addConstraint(Sketcher.Constraint("Coincident", 52, 2, 53, 1))
sketch2.addConstraint(Sketcher.Constraint("Coincident", 53, 2, 54, 1))
sketch2.addConstraint(Sketcher.Constraint("Coincident", 54, 2, 55, 1))
sketch2.addConstraint(Sketcher.Constraint("Coincident", 55, 2, 56, 1))
sketch2.addConstraint(Sketcher.Constraint("Coincident", 56, 2, 57, 1))
sketch2.addConstraint(Sketcher.Constraint("Coincident", 57, 2, 58, 1))
sketch2.addConstraint(Sketcher.Constraint("Coincident", 58, 2, 59, 1))
sketch2.addConstraint(Sketcher.Constraint("Coincident", 59, 2, 60, 1))
sketch2.addConstraint(Sketcher.Constraint("Coincident", 60, 2, 61, 1))
sketch2.addConstraint(Sketcher.Constraint("Coincident", 61, 2, 62, 1))
sketch2.addConstraint(Sketcher.Constraint("Coincident", 62, 2, 63, 1))
sketch2.addConstraint(Sketcher.Constraint("Coincident", 63, 2, 64, 1))
sketch2.addConstraint(Sketcher.Constraint("Coincident", 64, 2, 65, 1))
sketch2.addConstraint(Sketcher.Constraint("Coincident", 65, 2, 66, 1))
sketch2.addConstraint(Sketcher.Constraint("Coincident", 66, 2, 67, 1))
sketch2.addConstraint(Sketcher.Constraint("Coincident", 67, 2, 0, 1))
sketch2.addConstraint(Sketcher.Constraint("Horizontal", 0))
sketch2.addConstraint(Sketcher.Constraint("Vertical", 1))
sketch2.addConstraint(Sketcher.Constraint("Horizontal", 2))
sketch2.addConstraint(Sketcher.Constraint("Vertical", 3))
sketch2.addConstraint(Sketcher.Constraint("Horizontal", 4))
sketch2.addConstraint(Sketcher.Constraint("Vertical", 5))
sketch2.addConstraint(Sketcher.Constraint("Horizontal", 6))
sketch2.addConstraint(Sketcher.Constraint("Vertical", 7))
sketch2.addConstraint(Sketcher.Constraint("Horizontal", 8))
sketch2.addConstraint(Sketcher.Constraint("Vertical", 9))
sketch2.addConstraint(Sketcher.Constraint("Horizontal", 10))
sketch2.addConstraint(Sketcher.Constraint("Vertical", 11))
sketch2.addConstraint(Sketcher.Constraint("Horizontal", 12))
sketch2.addConstraint(Sketcher.Constraint("Vertical", 13))
sketch2.addConstraint(Sketcher.Constraint("Horizontal", 14))
sketch2.addConstraint(Sketcher.Constraint("Vertical", 15))
sketch2.addConstraint(Sketcher.Constraint("Horizontal", 16))
sketch2.addConstraint(Sketcher.Constraint("Vertical", 17))
sketch2.addConstraint(Sketcher.Constraint("Horizontal", 18))
sketch2.addConstraint(Sketcher.Constraint("Vertical", 19))
sketch2.addConstraint(Sketcher.Constraint("Horizontal", 20))
sketch2.addConstraint(Sketcher.Constraint("Vertical", 21))
sketch2.addConstraint(Sketcher.Constraint("Horizontal", 22))
sketch2.addConstraint(Sketcher.Constraint("Vertical", 23))
sketch2.addConstraint(Sketcher.Constraint("Horizontal", 24))
sketch2.addConstraint(Sketcher.Constraint("Vertical", 25))
sketch2.addConstraint(Sketcher.Constraint("Horizontal", 26))
sketch2.addConstraint(Sketcher.Constraint("Vertical", 27))
sketch2.addConstraint(Sketcher.Constraint("Horizontal", 28))
sketch2.addConstraint(Sketcher.Constraint("Vertical", 29))
sketch2.addConstraint(Sketcher.Constraint("Horizontal", 30))
sketch2.addConstraint(Sketcher.Constraint("Vertical", 31))
sketch2.addConstraint(Sketcher.Constraint("Horizontal", 32))
sketch2.addConstraint(Sketcher.Constraint("Vertical", 33))
sketch2.addConstraint(Sketcher.Constraint("Horizontal", 34))
sketch2.addConstraint(Sketcher.Constraint("Vertical", 35))
sketch2.addConstraint(Sketcher.Constraint("Horizontal", 36))
sketch2.addConstraint(Sketcher.Constraint("Vertical", 37))
sketch2.addConstraint(Sketcher.Constraint("Horizontal", 38))
sketch2.addConstraint(Sketcher.Constraint("Vertical", 39))
sketch2.addConstraint(Sketcher.Constraint("Horizontal", 40))
sketch2.addConstraint(Sketcher.Constraint("Vertical", 41))
sketch2.addConstraint(Sketcher.Constraint("Horizontal", 42))
sketch2.addConstraint(Sketcher.Constraint("Vertical", 43))
sketch2.addConstraint(Sketcher.Constraint("Horizontal", 44))
sketch2.addConstraint(Sketcher.Constraint("Vertical", 45))
sketch2.addConstraint(Sketcher.Constraint("Horizontal", 46))
sketch2.addConstraint(Sketcher.Constraint("Vertical", 47))
sketch2.addConstraint(Sketcher.Constraint("Horizontal", 48))
sketch2.addConstraint(Sketcher.Constraint("Vertical", 49))
sketch2.addConstraint(Sketcher.Constraint("Horizontal", 50))
sketch2.addConstraint(Sketcher.Constraint("Vertical", 51))
sketch2.addConstraint(Sketcher.Constraint("Horizontal", 52))
sketch2.addConstraint(Sketcher.Constraint("Vertical", 53))
sketch2.addConstraint(Sketcher.Constraint("Horizontal", 54))
sketch2.addConstraint(Sketcher.Constraint("Vertical", 55))
sketch2.addConstraint(Sketcher.Constraint("Horizontal", 56))
sketch2.addConstraint(Sketcher.Constraint("Vertical", 57))
sketch2.addConstraint(Sketcher.Constraint("Horizontal", 58))
sketch2.addConstraint(Sketcher.Constraint("Vertical", 59))
sketch2.addConstraint(Sketcher.Constraint("Horizontal", 60))
sketch2.addConstraint(Sketcher.Constraint("Vertical", 61))
sketch2.addConstraint(Sketcher.Constraint("Horizontal", 62))
sketch2.addConstraint(Sketcher.Constraint("Vertical", 63))
sketch2.addConstraint(Sketcher.Constraint("Horizontal", 64))
sketch2.addConstraint(Sketcher.Constraint("Vertical", 65))
sketch2.addConstraint(Sketcher.Constraint("Horizontal", 66))
sketch2.addConstraint(Sketcher.Constraint("Vertical", 67))
sketch2.addConstraint(Sketcher.Constraint("Symmetric", 33, 2, 34, 2, -1, 1))
sketch2.addConstraint(Sketcher.Constraint("Symmetric", 31, 2, 36, 2, -2))
sketch2.addConstraint(Sketcher.Constraint("Symmetric", 29, 2, 38, 2, -2))
sketch2.addConstraint(Sketcher.Constraint("Symmetric", 27, 2, 40, 2, -2))
sketch2.addConstraint(Sketcher.Constraint("Symmetric", 25, 2, 42, 2, -2))
sketch2.addConstraint(Sketcher.Constraint("Symmetric", 23, 2, 44, 2, -2))
sketch2.addConstraint(Sketcher.Constraint("Symmetric", 21, 2, 46, 2, -2))
sketch2.addConstraint(Sketcher.Constraint("Symmetric", 19, 2, 48, 2, -2))
sketch2.addConstraint(Sketcher.Constraint("Symmetric", 17, 2, 50, 2, -2))
sketch2.addConstraint(Sketcher.Constraint("Symmetric", 15, 2, 52, 2, -2))
sketch2.addConstraint(Sketcher.Constraint("Symmetric", 13, 2, 54, 2, -2))
sketch2.addConstraint(Sketcher.Constraint("Symmetric", 11, 2, 56, 2, -2))
sketch2.addConstraint(Sketcher.Constraint("Symmetric", 9, 2, 58, 2, -2))
sketch2.addConstraint(Sketcher.Constraint("Symmetric", 7, 2, 60, 2, -2))
sketch2.addConstraint(Sketcher.Constraint("Symmetric", 5, 2, 62, 2, -2))
sketch2.addConstraint(Sketcher.Constraint("Symmetric", 3, 2, 64, 2, -2))
sketch2.addConstraint(Sketcher.Constraint("Symmetric", 1, 2, 66, 2, -2))
sketch2.addConstraint(Sketcher.Constraint("Vertical", 1, 2, 4, 2))
sketch2.addConstraint(Sketcher.Constraint("Vertical", 3, 2, 6, 2))
sketch2.addConstraint(Sketcher.Constraint("Vertical", 5, 2, 8, 2))
sketch2.addConstraint(Sketcher.Constraint("Vertical", 7, 2, 10, 2))
sketch2.addConstraint(Sketcher.Constraint("Vertical", 9, 2, 12, 2))
sketch2.addConstraint(Sketcher.Constraint("Vertical", 11, 2, 14, 2))
sketch2.addConstraint(Sketcher.Constraint("Vertical", 13, 2, 16, 2))
sketch2.addConstraint(Sketcher.Constraint("Vertical", 15, 2, 18, 2))
sketch2.addConstraint(Sketcher.Constraint("Vertical", 17, 2, 20, 2))
sketch2.addConstraint(Sketcher.Constraint("Vertical", 19, 2, 22, 2))
sketch2.addConstraint(Sketcher.Constraint("Vertical", 21, 2, 24, 2))
sketch2.addConstraint(Sketcher.Constraint("Vertical", 23, 2, 26, 2))
sketch2.addConstraint(Sketcher.Constraint("Vertical", 25, 2, 28, 2))
sketch2.addConstraint(Sketcher.Constraint("Vertical", 27, 2, 30, 2))
sketch2.addConstraint(Sketcher.Constraint("Vertical", 29, 2, 32, 2))
sketch2.addConstraint(Sketcher.Constraint("Equal", 3, 7))
sketch2.addConstraint(Sketcher.Constraint("Equal", 5, 9))
sketch2.addConstraint(Sketcher.Constraint("Equal", 7, 11))
sketch2.addConstraint(Sketcher.Constraint("Equal", 9, 13))
sketch2.addConstraint(Sketcher.Constraint("Equal", 11, 15))
sketch2.addConstraint(Sketcher.Constraint("Equal", 13, 17))
sketch2.addConstraint(Sketcher.Constraint("Equal", 15, 19))
sketch2.addConstraint(Sketcher.Constraint("Equal", 17, 21))
sketch2.addConstraint(Sketcher.Constraint("Equal", 19, 23))
sketch2.addConstraint(Sketcher.Constraint("Equal", 21, 25))
sketch2.addConstraint(Sketcher.Constraint("Equal", 23, 27))
sketch2.addConstraint(Sketcher.Constraint("Equal", 25, 29))
sketch2.addConstraint(Sketcher.Constraint("Equal", 27, 31))
sketch2.addConstraint(Sketcher.Constraint("Equal", 29, 33))
sketch2.addConstraint(Sketcher.Constraint("DistanceX", 0, 2, 0, 1, 28.0))
sketch2.addConstraint(Sketcher.Constraint("DistanceX", 2, 1, 2, 2, 3.0))
sketch2.addConstraint(Sketcher.Constraint("DistanceY", 1, 2, 1, 1, 10.0))
sketch2.addConstraint(Sketcher.Constraint("DistanceY", 3, 2, 3, 1, 16.0))
sketch2.addConstraint(Sketcher.Constraint("DistanceY", 5, 2, 5, 1, 104.0))
pad2 = body2.newObject("PartDesign::Pad", "Pad001")
pad2.Profile = sketch2
pad2.Length = 400
pad2.Reversed = True

doc.recompute()
